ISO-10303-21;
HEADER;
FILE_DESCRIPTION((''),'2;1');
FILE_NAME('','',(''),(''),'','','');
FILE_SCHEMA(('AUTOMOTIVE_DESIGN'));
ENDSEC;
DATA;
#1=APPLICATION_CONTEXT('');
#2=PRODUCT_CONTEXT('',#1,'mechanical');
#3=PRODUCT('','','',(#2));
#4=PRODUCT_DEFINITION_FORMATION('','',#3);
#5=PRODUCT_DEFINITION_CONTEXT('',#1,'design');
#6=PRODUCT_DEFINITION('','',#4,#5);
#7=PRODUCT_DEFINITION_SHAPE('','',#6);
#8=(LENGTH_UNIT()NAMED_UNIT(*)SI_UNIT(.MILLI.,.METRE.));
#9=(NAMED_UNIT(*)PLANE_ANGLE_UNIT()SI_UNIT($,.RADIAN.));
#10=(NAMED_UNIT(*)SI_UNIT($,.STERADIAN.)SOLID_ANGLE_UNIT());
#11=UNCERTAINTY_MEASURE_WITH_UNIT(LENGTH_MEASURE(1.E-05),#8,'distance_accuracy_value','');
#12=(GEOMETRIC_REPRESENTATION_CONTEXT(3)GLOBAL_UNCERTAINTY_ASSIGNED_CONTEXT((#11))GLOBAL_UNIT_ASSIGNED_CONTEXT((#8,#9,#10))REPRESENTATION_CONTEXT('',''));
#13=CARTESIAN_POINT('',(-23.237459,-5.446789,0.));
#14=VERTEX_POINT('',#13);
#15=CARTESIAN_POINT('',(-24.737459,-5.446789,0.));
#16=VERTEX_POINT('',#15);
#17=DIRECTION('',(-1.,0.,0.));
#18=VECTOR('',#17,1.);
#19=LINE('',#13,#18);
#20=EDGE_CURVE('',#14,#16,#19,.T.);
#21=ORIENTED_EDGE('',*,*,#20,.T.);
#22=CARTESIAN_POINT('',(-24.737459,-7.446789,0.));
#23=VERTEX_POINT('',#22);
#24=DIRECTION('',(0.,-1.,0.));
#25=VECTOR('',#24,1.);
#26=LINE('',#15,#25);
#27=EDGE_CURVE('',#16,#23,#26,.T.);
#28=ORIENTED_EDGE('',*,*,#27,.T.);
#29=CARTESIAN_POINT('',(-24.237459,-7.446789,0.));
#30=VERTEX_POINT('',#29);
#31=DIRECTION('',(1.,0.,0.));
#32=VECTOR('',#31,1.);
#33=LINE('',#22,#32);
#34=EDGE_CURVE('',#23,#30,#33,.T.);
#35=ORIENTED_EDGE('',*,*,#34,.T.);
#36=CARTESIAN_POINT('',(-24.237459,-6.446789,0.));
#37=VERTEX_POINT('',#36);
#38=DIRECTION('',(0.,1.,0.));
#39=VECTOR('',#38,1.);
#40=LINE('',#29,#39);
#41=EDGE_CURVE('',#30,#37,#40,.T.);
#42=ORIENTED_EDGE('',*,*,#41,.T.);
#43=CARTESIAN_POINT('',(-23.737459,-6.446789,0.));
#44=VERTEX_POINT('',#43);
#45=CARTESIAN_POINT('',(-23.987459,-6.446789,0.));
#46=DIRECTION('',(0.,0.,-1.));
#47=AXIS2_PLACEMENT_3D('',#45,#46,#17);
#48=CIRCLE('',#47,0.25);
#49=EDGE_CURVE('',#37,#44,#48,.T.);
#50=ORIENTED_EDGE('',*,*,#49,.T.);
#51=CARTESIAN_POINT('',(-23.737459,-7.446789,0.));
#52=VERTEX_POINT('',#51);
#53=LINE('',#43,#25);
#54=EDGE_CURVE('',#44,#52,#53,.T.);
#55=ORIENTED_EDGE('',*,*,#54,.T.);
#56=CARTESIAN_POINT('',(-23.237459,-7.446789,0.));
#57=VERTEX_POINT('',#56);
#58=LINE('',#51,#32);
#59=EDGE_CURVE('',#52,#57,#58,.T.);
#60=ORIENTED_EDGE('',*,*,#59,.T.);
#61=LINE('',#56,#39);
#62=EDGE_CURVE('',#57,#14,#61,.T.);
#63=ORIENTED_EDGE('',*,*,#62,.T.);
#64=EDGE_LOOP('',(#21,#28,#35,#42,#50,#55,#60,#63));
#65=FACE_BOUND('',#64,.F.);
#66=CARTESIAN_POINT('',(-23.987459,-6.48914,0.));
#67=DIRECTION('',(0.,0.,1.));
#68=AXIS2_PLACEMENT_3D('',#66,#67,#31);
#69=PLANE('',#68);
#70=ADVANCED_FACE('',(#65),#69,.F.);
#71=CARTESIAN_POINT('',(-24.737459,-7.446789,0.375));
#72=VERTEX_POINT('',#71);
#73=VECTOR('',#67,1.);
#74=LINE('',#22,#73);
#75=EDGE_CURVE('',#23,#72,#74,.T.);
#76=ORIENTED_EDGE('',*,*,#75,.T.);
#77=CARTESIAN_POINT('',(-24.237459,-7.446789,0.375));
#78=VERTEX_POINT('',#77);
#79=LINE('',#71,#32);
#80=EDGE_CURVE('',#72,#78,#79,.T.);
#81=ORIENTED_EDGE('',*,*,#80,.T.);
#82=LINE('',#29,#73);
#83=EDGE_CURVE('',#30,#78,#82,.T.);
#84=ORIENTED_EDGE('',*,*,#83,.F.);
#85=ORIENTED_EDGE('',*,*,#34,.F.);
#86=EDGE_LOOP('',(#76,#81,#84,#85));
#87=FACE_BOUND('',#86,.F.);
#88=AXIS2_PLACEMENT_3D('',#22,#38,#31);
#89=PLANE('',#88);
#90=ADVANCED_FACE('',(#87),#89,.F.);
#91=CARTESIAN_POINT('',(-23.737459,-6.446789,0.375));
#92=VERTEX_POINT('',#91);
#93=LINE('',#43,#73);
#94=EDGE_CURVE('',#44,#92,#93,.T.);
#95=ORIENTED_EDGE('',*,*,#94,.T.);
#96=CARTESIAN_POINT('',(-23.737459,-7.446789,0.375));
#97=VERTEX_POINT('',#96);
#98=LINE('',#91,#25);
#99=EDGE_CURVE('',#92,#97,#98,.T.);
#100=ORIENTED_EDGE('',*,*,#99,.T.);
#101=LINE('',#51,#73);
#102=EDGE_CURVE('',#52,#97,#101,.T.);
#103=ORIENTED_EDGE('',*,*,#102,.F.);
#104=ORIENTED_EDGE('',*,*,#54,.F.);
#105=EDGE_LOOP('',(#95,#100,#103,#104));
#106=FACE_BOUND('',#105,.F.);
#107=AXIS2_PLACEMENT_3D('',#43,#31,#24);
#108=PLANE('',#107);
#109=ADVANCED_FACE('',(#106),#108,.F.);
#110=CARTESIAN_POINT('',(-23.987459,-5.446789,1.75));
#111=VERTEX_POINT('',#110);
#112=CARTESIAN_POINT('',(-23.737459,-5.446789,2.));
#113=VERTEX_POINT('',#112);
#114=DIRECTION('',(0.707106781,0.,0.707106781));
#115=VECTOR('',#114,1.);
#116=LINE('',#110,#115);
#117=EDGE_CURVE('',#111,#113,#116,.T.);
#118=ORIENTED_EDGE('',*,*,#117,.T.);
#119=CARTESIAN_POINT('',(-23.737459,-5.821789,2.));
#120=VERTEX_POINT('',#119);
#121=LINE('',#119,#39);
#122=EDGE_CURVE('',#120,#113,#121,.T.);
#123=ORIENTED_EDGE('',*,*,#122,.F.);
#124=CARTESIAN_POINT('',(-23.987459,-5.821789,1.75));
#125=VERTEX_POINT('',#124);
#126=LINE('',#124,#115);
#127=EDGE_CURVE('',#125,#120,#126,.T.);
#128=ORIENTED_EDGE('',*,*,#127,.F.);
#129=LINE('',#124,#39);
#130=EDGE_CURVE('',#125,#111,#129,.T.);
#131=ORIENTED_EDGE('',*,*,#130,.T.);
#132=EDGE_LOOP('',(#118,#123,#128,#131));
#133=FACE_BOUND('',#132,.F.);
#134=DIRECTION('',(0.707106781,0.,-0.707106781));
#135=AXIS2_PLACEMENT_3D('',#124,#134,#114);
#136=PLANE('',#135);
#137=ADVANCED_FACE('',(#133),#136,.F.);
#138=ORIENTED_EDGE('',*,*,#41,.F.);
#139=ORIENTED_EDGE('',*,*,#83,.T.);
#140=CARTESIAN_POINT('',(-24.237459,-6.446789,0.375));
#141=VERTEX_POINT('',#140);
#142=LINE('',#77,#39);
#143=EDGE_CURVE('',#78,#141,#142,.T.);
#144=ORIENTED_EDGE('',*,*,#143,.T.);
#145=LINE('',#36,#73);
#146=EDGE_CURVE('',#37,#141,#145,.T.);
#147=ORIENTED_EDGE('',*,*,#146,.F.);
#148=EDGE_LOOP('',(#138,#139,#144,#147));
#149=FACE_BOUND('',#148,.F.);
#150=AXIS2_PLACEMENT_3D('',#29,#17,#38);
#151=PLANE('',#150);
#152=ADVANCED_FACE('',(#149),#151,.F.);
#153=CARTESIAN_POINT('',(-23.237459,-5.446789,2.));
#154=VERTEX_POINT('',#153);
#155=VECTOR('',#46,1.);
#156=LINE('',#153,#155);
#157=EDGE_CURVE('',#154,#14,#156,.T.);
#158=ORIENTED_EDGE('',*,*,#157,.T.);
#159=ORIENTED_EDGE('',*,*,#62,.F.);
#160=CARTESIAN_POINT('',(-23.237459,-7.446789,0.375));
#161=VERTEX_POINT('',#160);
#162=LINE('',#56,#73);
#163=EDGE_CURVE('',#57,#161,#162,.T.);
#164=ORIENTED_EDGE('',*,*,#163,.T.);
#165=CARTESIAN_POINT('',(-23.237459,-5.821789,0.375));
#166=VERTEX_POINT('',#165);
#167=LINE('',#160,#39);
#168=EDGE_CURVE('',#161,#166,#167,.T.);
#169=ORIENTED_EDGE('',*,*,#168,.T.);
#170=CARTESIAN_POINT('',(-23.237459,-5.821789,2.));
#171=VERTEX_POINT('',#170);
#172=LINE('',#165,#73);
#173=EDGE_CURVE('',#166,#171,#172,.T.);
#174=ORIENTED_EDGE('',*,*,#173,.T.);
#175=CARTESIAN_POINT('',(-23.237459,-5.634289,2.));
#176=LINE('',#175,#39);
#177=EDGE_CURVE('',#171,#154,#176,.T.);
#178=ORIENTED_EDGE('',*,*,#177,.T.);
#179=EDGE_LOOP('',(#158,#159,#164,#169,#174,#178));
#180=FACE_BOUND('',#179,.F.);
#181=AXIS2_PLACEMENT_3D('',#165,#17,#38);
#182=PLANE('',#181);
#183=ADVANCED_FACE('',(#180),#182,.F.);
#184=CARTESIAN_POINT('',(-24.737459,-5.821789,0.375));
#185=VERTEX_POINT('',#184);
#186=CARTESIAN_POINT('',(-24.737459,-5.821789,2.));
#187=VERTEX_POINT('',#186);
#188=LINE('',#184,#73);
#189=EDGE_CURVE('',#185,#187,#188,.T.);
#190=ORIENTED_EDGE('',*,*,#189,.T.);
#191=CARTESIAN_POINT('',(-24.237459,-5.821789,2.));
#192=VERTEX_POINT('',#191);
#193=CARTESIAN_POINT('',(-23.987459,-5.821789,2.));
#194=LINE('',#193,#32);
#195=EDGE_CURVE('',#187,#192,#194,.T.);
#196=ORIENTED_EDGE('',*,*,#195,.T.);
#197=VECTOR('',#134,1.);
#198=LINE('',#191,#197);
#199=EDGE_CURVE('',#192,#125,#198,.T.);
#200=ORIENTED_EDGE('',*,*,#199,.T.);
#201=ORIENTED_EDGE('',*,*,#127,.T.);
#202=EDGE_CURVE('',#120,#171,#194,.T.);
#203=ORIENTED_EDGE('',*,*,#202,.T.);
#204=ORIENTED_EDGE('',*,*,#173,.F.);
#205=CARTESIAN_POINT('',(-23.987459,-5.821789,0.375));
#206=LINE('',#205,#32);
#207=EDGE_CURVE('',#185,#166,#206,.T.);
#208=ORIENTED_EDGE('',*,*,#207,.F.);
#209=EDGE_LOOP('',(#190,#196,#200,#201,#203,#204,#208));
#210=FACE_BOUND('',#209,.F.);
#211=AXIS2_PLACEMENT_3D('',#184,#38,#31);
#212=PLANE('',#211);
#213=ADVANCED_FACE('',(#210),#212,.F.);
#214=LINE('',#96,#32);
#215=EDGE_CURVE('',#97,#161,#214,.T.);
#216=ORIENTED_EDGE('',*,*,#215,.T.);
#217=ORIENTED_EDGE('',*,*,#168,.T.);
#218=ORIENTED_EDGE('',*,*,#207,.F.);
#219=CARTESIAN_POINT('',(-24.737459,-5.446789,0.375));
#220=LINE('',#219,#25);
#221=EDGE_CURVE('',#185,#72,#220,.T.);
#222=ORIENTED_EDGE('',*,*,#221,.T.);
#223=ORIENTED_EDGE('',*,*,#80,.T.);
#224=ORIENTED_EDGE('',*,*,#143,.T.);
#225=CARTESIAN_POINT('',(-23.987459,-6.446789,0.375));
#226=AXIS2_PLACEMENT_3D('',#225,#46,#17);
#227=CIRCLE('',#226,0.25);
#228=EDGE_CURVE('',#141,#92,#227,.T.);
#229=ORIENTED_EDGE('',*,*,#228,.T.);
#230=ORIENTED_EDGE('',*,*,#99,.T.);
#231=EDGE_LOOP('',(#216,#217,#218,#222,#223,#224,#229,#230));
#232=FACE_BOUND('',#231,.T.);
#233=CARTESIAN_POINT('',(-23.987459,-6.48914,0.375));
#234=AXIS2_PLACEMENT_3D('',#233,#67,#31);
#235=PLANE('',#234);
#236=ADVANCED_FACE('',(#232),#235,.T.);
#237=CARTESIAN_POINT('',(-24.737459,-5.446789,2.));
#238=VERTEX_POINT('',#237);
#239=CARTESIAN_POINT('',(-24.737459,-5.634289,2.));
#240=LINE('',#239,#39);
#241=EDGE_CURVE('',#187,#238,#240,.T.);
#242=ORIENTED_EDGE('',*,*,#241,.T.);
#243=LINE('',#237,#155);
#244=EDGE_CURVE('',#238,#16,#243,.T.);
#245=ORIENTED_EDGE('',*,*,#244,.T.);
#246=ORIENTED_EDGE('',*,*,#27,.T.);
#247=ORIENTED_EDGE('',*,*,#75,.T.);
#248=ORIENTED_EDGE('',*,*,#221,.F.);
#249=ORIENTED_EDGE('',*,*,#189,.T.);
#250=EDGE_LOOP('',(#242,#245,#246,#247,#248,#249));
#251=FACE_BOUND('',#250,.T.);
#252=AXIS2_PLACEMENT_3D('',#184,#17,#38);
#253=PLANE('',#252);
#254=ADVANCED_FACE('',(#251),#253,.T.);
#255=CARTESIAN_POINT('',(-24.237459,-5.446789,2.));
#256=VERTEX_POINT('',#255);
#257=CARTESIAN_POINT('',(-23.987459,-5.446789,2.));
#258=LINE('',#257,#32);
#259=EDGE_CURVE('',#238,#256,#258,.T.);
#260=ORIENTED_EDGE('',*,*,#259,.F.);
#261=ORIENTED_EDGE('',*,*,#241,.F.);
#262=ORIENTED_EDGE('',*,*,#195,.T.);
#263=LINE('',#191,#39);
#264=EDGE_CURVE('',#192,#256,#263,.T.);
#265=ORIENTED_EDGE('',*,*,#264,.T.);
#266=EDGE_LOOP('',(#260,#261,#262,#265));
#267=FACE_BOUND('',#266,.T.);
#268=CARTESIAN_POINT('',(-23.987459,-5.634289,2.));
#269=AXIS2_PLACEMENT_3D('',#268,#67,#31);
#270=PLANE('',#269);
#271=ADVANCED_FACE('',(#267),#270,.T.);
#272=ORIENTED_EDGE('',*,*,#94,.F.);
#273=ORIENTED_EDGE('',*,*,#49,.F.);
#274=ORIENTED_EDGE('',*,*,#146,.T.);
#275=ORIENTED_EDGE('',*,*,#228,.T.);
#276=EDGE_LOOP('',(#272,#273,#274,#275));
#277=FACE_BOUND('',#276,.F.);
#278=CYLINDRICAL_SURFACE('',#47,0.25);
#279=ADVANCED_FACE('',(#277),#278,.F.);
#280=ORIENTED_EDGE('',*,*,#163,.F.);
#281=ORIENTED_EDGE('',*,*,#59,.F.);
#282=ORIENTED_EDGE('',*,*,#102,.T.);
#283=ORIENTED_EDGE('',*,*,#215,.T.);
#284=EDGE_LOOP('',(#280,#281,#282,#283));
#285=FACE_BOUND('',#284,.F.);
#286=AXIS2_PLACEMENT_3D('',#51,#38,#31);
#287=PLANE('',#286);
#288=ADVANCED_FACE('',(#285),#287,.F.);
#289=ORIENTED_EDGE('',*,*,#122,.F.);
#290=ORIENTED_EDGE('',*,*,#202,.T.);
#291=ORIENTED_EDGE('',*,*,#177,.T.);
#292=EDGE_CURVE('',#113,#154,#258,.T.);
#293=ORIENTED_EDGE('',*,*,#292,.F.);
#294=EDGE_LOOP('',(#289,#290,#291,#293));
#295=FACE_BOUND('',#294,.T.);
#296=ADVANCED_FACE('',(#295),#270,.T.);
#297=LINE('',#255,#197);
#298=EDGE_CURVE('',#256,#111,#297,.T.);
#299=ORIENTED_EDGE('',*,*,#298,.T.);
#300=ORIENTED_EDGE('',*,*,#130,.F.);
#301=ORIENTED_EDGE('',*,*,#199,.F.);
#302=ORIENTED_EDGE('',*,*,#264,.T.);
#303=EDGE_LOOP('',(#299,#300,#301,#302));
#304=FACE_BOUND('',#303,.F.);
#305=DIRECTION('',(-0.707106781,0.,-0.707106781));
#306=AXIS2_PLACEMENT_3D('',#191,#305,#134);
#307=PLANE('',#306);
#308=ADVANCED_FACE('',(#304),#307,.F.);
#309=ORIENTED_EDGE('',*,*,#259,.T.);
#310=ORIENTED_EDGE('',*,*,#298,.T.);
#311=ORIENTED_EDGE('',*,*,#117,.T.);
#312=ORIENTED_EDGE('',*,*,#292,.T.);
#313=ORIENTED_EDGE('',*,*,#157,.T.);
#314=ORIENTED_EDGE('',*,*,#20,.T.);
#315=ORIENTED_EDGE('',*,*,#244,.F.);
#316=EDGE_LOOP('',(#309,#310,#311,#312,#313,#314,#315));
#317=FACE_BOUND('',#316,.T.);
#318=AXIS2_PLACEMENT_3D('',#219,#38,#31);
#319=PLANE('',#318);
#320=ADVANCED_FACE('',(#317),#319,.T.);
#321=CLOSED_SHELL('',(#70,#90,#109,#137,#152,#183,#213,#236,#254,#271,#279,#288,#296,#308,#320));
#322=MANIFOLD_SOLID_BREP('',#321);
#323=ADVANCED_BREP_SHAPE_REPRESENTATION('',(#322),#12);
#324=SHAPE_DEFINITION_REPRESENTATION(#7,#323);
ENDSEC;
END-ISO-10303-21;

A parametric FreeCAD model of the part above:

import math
import FreeCAD as App
import Part
import Sketcher

V = App.Vector

doc = App.newDocument("Part")
params = doc.addObject("Spreadsheet::Sheet", "Params")
for row, (alias, value) in enumerate([
    ("sketch1_height", "2 mm"),
    ("sketch1_height2", "1 mm"),
    ("sketch1_radius", "0.25 mm"),
    ("sketch1_width", "1.5 mm"),
    ("pad1_length", "0.375 mm"),
    ("sketch2_width", "1.5 mm"),
    ("pad2_length", "1.625 mm"),
    ("sketch3_width", "0.5 mm"),
], start=1):
    params.set(f"A{row}", alias)
    params.set(f"B{row}", "=" + value)
    params.setAlias(f"B{row}", alias)

body = doc.addObject("PartDesign::Body", "Body")

sketch1 = body.newObject("Sketcher::SketchObject", "Sketch")
sketch1.AttachmentSupport = (doc.getObject("XY_Plane"), [""])
sketch1.MapMode = "FlatFace"
sketch1.addGeometry([
    Part.LineSegment(V(-23.24, -5.45, 0), V(-24.74, -5.45, 0)),
    Part.LineSegment(V(-24.74, -5.45, 0), V(-24.74, -7.45, 0)),
    Part.LineSegment(V(-24.74, -7.45, 0), V(-24.24, -7.45, 0)),
    Part.LineSegment(V(-24.24, -7.45, 0), V(-24.24, -6.45, 0)),
    Part.ArcOfCircle(Part.Circle(V(-23.99, -6.45, 0), V(0, 0, 1), 0.25), math.radians(0), math.radians(180)),
    Part.LineSegment(V(-23.74, -6.45, 0), V(-23.74, -7.45, 0)),
    Part.LineSegment(V(-23.74, -7.45, 0), V(-23.24, -7.45, 0)),
    Part.LineSegment(V(-23.24, -7.45, 0), V(-23.24, -5.45, 0)),
], False)
sketch1.addConstraint([
    Sketcher.Constraint("Coincident", 0, 2, 1, 1),
    Sketcher.Constraint("Coincident", 1, 2, 2, 1),
    Sketcher.Constraint("Coincident", 2, 2, 3, 1),
    Sketcher.Constraint("Tangent", 3, 2, 4, 2),
    Sketcher.Constraint("Tangent", 4, 1, 5, 1),
    Sketcher.Constraint("Coincident", 5, 2, 6, 1),
    Sketcher.Constraint("Coincident", 6, 2, 7, 1),
    Sketcher.Constraint("Coincident", 7, 2, 0, 1),
    Sketcher.Constraint("Horizontal", 0),
    Sketcher.Constraint("Vertical", 1),
    Sketcher.Constraint("Horizontal", 2),
    Sketcher.Constraint("Vertical", 3),
    Sketcher.Constraint("Vertical", 5),
    Sketcher.Constraint("Horizontal", 6),
    Sketcher.Constraint("Vertical", 7),
    Sketcher.Constraint("Horizontal", 2, 2, 5, 2),
    Sketcher.Constraint("Equal", 2, 6),
    Sketcher.Constraint("DistanceY", 1, 2, 1, 1, 2.0),
    Sketcher.Constraint("DistanceY", 3, 1, 3, 2, 1.0),
    Sketcher.Constraint("Radius", 4, 0.25),
    Sketcher.Constraint("DistanceX", 0, 2, 0, 1, 1.5),
    Sketcher.Constraint("DistanceX", 4, 3, -1, 1, 23.987459),
    Sketcher.Constraint("DistanceY", 4, 3, -1, 1, 6.446789),
])
sketch1.setExpression("Constraints[17]", "Params.sketch1_height")
sketch1.setExpression("Constraints[18]", "Params.sketch1_height2")
sketch1.setExpression("Constraints[19]", "Params.sketch1_radius")
sketch1.setExpression("Constraints[20]", "Params.sketch1_width")
pad1 = body.newObject("PartDesign::Pad", "Pad")
pad1.Profile = sketch1
pad1.setExpression("Length", "Params.pad1_length")

sketch2 = body.newObject("Sketcher::SketchObject", "Sketch001")
sketch2.AttachmentSupport = (doc.getObject("XY_Plane"), [""])
sketch2.MapMode = "FlatFace"
sketch2.AttachmentOffset = App.Placement(V(0, 0, 0.375), App.Rotation())
sketch2.addGeometry([
    Part.LineSegment(V(-24.74, -5.45, 0), V(-24.74, -5.82, 0)),
    Part.LineSegment(V(-24.74, -5.82, 0), V(-23.24, -5.82, 0)),
    Part.LineSegment(V(-23.24, -5.82, 0), V(-23.24, -5.45, 0)),
    Part.LineSegment(V(-23.24, -5.45, 0), V(-24.74, -5.45, 0)),
], False)
sketch2.addConstraint([
    Sketcher.Constraint("Coincident", 0, 2, 1, 1),
    Sketcher.Constraint("Coincident", 1, 2, 2, 1),
    Sketcher.Constraint("Coincident", 2, 2, 3, 1),
    Sketcher.Constraint("Coincident", 3, 2, 0, 1),
    Sketcher.Constraint("Vertical", 0),
    Sketcher.Constraint("Horizontal", 1),
    Sketcher.Constraint("Vertical", 2),
    Sketcher.Constraint("Horizontal", 3),
    Sketcher.Constraint("DistanceX", 1, 1, 1, 2, 1.5),
    Sketcher.Constraint("DistanceY", 0, 2, 0, 1, 0.375),
    Sketcher.Constraint("DistanceX", 0, 2, -1, 1, 24.737459),
    Sketcher.Constraint("DistanceY", 0, 2, -1, 1, 5.821789),
])
sketch2.setExpression("Constraints[8]", "Params.sketch2_width")
pad2 = body.newObject("PartDesign::Pad", "Pad001")
pad2.Profile = sketch2
pad2.setExpression("Length", "Params.pad2_length")

sketch3 = body.newObject("Sketcher::SketchObject", "Sketch002")
sketch3.AttachmentSupport = (doc.getObject("XZ_Plane"), [""])
sketch3.MapMode = "FlatFace"
sketch3.AttachmentOffset = App.Placement(V(0, 0, 5.821789), App.Rotation())
sketch3.addGeometry([
    Part.LineSegment(V(-23.74, 2, 0), V(-24.24, 2, 0)),
    Part.LineSegment(V(-24.24, 2, 0), V(-23.99, 1.75, 0)),
    Part.LineSegment(V(-23.99, 1.75, 0), V(-23.74, 2, 0)),
], False)
sketch3.addConstraint([
    Sketcher.Constraint("Coincident", 0, 2, 1, 1),
    Sketcher.Constraint("Coincident", 1, 2, 2, 1),
    Sketcher.Constraint("Coincident", 2, 2, 0, 1),
    Sketcher.Constraint("Horizontal", 0),
    Sketcher.Constraint("Perpendicular", 1, 2),
    Sketcher.Constraint("Equal", 1, 2),
    Sketcher.Constraint("DistanceX", 0, 2, 0, 1, 0.5),
    Sketcher.Constraint("DistanceY", -1, 1, 0, 2, 2.0),
    Sketcher.Constraint("DistanceX", 0, 2, -1, 1, 24.237459),
])
sketch3.setExpression("Constraints[6]", "Params.sketch3_width")
pocket1 = body.newObject("PartDesign::Pocket", "Pocket")
pocket1.Profile = sketch3
pocket1.Type = "ThroughAll"

doc.recompute()
